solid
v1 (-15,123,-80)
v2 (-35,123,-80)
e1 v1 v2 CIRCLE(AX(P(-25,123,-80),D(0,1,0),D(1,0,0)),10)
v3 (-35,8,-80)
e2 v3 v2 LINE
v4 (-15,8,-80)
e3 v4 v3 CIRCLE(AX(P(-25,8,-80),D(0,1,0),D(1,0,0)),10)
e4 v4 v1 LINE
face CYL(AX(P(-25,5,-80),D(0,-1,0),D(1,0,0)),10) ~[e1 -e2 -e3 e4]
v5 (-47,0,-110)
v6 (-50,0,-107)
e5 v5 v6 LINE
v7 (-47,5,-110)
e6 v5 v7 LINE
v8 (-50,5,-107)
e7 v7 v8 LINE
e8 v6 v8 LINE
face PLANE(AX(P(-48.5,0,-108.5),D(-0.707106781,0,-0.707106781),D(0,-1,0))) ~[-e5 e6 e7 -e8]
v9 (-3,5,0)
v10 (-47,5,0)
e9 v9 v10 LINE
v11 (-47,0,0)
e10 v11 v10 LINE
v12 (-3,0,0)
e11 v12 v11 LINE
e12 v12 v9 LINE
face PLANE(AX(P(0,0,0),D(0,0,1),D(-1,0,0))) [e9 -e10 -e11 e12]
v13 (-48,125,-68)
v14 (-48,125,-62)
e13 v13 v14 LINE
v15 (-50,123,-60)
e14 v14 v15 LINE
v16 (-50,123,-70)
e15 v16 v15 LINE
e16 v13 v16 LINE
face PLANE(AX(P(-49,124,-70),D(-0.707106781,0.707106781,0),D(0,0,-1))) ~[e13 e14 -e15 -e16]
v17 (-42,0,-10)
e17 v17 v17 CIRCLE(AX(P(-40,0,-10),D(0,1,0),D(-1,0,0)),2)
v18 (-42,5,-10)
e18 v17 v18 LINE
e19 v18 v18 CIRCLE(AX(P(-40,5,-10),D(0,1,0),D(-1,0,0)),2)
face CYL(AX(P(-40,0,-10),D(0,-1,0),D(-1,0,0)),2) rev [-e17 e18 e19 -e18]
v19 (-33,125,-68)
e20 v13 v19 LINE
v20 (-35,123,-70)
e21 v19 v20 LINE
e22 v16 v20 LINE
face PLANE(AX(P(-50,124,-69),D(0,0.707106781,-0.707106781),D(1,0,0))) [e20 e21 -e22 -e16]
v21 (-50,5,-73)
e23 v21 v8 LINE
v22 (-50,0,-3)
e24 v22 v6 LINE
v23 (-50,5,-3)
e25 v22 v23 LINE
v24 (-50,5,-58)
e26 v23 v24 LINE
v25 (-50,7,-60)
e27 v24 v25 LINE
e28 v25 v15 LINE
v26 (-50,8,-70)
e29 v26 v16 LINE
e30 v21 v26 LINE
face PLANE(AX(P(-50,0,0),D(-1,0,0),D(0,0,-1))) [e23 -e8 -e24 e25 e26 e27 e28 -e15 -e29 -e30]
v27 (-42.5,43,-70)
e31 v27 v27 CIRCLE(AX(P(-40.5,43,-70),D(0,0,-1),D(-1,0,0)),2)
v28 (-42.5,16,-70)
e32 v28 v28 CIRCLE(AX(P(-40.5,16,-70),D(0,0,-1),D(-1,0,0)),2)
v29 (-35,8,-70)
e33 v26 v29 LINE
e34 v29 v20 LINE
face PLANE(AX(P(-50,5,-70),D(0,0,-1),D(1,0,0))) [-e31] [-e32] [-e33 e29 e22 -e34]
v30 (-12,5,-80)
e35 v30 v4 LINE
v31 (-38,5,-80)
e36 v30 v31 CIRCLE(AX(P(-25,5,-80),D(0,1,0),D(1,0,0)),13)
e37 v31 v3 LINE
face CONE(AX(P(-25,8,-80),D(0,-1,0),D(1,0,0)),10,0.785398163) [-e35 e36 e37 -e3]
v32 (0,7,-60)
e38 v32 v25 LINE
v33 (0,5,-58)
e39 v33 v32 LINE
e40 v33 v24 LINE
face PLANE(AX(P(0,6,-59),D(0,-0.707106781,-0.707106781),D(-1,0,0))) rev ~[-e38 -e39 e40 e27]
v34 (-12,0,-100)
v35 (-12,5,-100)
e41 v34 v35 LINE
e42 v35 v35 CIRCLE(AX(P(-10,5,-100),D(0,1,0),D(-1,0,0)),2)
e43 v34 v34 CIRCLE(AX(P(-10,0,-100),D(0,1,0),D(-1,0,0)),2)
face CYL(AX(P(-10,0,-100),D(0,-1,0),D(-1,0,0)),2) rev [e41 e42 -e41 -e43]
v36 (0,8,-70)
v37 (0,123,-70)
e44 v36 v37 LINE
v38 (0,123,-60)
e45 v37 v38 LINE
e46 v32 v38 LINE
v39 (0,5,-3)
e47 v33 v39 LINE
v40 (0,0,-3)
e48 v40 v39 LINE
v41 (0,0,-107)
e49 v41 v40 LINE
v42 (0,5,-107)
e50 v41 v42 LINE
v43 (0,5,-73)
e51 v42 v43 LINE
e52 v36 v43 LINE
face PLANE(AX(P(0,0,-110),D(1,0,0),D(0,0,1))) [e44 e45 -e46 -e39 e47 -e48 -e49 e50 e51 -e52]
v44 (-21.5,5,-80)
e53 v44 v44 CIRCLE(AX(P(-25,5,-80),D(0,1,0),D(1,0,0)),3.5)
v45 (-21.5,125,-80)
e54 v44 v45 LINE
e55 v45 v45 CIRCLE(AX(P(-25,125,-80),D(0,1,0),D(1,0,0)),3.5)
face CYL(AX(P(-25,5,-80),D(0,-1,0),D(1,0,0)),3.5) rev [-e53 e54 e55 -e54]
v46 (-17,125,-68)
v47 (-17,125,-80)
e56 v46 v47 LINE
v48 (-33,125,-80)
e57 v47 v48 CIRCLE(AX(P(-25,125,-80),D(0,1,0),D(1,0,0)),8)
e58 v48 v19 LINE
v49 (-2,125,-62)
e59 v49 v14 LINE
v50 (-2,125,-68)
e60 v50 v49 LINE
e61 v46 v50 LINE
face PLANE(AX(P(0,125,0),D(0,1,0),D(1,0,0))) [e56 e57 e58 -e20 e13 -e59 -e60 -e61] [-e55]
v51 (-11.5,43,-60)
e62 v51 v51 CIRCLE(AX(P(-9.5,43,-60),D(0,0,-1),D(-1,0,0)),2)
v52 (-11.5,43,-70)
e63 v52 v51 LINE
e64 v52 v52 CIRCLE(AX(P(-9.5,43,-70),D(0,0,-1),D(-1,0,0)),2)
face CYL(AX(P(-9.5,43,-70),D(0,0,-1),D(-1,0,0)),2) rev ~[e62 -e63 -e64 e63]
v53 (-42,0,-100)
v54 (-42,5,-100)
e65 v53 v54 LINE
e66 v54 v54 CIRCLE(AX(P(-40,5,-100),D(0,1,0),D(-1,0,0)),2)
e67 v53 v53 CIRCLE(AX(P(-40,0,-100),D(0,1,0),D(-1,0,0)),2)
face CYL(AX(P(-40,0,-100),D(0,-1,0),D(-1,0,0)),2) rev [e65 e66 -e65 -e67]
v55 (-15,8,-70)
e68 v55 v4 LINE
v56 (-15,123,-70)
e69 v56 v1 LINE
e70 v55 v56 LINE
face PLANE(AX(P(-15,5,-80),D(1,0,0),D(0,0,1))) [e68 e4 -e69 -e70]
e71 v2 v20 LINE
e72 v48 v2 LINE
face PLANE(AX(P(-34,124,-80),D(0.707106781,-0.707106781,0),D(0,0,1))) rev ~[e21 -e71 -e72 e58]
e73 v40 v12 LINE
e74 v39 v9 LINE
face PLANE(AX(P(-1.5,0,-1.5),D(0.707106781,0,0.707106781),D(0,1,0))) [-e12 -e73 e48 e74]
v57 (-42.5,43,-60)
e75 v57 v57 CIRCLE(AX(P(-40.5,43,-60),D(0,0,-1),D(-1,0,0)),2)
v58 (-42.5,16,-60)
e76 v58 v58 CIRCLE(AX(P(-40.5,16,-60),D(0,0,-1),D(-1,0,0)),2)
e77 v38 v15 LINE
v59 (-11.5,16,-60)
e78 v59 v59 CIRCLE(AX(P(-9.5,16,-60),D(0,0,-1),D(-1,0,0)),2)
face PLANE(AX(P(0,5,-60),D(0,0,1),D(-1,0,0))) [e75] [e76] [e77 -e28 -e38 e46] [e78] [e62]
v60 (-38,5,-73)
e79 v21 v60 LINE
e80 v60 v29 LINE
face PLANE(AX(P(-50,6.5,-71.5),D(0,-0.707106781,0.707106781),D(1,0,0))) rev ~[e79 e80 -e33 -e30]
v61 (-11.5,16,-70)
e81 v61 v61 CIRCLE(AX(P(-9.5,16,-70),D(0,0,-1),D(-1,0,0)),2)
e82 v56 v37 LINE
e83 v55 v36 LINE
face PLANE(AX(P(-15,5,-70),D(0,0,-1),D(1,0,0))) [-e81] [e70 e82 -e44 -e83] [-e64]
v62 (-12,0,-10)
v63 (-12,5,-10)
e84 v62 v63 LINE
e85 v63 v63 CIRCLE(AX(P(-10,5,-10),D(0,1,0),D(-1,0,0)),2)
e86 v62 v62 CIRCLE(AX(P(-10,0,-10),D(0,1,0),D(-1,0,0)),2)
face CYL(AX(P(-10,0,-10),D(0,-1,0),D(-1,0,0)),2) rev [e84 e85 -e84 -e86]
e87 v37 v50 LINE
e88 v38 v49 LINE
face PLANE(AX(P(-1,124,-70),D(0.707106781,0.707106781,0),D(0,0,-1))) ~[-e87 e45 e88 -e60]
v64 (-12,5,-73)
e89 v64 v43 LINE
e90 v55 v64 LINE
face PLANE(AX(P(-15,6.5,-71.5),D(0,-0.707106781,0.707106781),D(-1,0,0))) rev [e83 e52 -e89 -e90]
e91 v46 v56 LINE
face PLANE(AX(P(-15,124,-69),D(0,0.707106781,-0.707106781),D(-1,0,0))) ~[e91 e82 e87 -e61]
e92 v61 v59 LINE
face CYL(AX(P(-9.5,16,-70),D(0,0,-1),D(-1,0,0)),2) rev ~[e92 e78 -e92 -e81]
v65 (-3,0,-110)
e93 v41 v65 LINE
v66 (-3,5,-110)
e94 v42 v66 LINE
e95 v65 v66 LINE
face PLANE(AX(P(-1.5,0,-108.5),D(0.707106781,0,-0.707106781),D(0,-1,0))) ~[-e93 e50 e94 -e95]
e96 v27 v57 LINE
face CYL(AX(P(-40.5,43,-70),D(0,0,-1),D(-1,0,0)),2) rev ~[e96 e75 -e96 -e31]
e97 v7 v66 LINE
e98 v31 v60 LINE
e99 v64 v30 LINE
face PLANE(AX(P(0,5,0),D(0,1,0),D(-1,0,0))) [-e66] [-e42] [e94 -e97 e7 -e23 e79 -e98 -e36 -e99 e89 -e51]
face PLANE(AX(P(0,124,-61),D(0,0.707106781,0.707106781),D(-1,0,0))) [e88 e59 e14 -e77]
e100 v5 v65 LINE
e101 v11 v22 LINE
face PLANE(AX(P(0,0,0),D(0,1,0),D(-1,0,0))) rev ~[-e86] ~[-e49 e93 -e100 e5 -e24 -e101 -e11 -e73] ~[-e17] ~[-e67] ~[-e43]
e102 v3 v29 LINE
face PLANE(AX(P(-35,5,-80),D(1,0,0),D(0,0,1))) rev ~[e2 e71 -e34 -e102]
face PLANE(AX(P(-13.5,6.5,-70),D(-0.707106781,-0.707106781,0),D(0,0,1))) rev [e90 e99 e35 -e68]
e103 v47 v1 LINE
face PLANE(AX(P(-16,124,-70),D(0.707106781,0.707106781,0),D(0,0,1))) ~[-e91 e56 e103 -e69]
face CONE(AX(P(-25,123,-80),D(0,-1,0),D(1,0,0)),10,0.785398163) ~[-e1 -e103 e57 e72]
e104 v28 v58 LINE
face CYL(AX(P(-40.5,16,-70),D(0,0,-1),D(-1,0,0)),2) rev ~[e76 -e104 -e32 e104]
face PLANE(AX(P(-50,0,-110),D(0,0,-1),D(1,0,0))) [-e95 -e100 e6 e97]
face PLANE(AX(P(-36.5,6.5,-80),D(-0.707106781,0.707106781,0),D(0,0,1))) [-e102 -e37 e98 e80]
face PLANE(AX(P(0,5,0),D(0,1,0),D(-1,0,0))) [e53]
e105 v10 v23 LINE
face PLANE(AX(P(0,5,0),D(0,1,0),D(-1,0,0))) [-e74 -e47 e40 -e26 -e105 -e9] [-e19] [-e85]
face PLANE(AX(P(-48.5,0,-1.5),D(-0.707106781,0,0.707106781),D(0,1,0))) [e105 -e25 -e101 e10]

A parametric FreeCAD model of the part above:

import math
import FreeCAD as App
import Part
import Sketcher
from FreeCAD import Vector
Q = App.Units.Quantity


def edges_at(feature, points):
    """Names of the edges that pass closest to the given points."""
    edges = feature.Shape.Edges
    near = lambda p: min(range(len(edges)), key=lambda i: edges[i].distToShape(Part.Vertex(*p))[0])
    return sorted({f"Edge{near(p) + 1}" for p in points})

doc = App.newDocument("Part")
body = doc.addObject("PartDesign::Body", "Body")

# Sketch on XZ plane
sketch1 = body.newObject("Sketcher::SketchObject", "Sketch")
sketch1.AttachmentSupport = (doc.getObject("XZ_Plane"), [""])
sketch1.MapMode = "FlatFace"
sketch1.addGeometry([
    Part.LineSegment(Vector(-50, 0, 0), Vector(0, 0, 0)),  # 0
    Part.LineSegment(Vector(0, 0, 0), Vector(0, -110, 0)),  # 1
    Part.LineSegment(Vector(0, -110, 0), Vector(-50, -110, 0)),  # 2
    Part.LineSegment(Vector(-50, -110, 0), Vector(-50, 0, 0)),  # 3
    Part.Circle(Vector(-10, -100, 0), Vector(0, 0, 1), 2),  # 4
    Part.Circle(Vector(-40, -100, 0), Vector(0, 0, 1), 2),  # 5
    Part.Circle(Vector(-10, -10, 0), Vector(0, 0, 1), 2),  # 6
    Part.Circle(Vector(-40, -10, 0), Vector(0, 0, 1), 2),  # 7
], False)
sketch1.addConstraint([
    Sketcher.Constraint("Coincident", 0, 2, 1, 1),
    Sketcher.Constraint("Coincident", 1, 2, 2, 1),
    Sketcher.Constraint("Coincident", 2, 2, 3, 1),
    Sketcher.Constraint("Coincident", 3, 2, 0, 1),
    Sketcher.Constraint("Horizontal", 0),
    Sketcher.Constraint("Vertical", 1),
    Sketcher.Constraint("Horizontal", 2),
    Sketcher.Constraint("Vertical", 3),
    Sketcher.Constraint("Coincident", 0, 2, -1, 1),
    Sketcher.Constraint("Equal", 4, 5),
    Sketcher.Constraint("Equal", 5, 6),
    Sketcher.Constraint("Equal", 6, 7),
    Sketcher.Constraint("Horizontal", 4, 3, 5, 3),
    Sketcher.Constraint("Horizontal", 6, 3, 7, 3),
    Sketcher.Constraint("Vertical", 4, 3, 6, 3),
    Sketcher.Constraint("Vertical", 5, 3, 7, 3),
    Sketcher.Constraint("Diameter", 4, Q("4 mm")),
    Sketcher.Constraint("DistanceX", 0, 1, 0, 2, Q("50 mm")),
    Sketcher.Constraint("DistanceY", 1, 2, 1, 1, Q("110 mm")),
    Sketcher.Constraint("DistanceX", 4, 3, -1, 1, Q("10 mm")),
    Sketcher.Constraint("DistanceY", 6, 3, -1, 1, Q("10 mm")),
    Sketcher.Constraint("DistanceX", 5, 3, 4, 3, Q("30 mm")),
    Sketcher.Constraint("DistanceY", 4, 3, 6, 3, Q("90 mm")),
])
pad1 = body.newObject("PartDesign::Pad", "Pad")
pad1.Profile = sketch1
pad1.Length = 5
pad1.Reversed = True

# Sketch on XZ plane
sketch2 = body.newObject("Sketcher::SketchObject", "Sketch001")
sketch2.AttachmentSupport = (doc.getObject("XZ_Plane"), [""])
sketch2.MapMode = "FlatFace"
sketch2.AttachmentOffset = App.Placement(Vector(0, 0, -5), App.Rotation())
sketch2.addGeometry([
    Part.LineSegment(Vector(-35, -70, 0), Vector(-50, -70, 0)),  # 0
    Part.LineSegment(Vector(-50, -70, 0), Vector(-50, -60, 0)),  # 1
    Part.LineSegment(Vector(-50, -60, 0), Vector(0, -60, 0)),  # 2
    Part.LineSegment(Vector(0, -60, 0), Vector(0, -70, 0)),  # 3
    Part.LineSegment(Vector(0, -70, 0), Vector(-15, -70, 0)),  # 4
    Part.LineSegment(Vector(-15, -70, 0), Vector(-15, -80, 0)),  # 5
    Part.ArcOfCircle(Part.Circle(Vector(-25, -80, 0), Vector(0, 0, 1), 10), math.radians(180), math.radians(360)),  # 6
    Part.LineSegment(Vector(-35, -80, 0), Vector(-35, -70, 0)),  # 7
    Part.Circle(Vector(-25, -80, 0), Vector(0, 0, 1), 3.5),  # 8
], False)
sketch2.addConstraint([
    Sketcher.Constraint("Coincident", 0, 2, 1, 1),
    Sketcher.Constraint("Coincident", 1, 2, 2, 1),
    Sketcher.Constraint("Coincident", 2, 2, 3, 1),
    Sketcher.Constraint("Coincident", 3, 2, 4, 1),
    Sketcher.Constraint("Coincident", 4, 2, 5, 1),
    Sketcher.Constraint("Tangent", 5, 2, 6, 2),
    Sketcher.Constraint("Tangent", 6, 1, 7, 1),
    Sketcher.Constraint("Coincident", 7, 2, 0, 1),
    Sketcher.Constraint("Horizontal", 0),
    Sketcher.Constraint("Vertical", 1),
    Sketcher.Constraint("Horizontal", 2),
    Sketcher.Constraint("Vertical", 3),
    Sketcher.Constraint("Horizontal", 4),
    Sketcher.Constraint("Vertical", 5),
    Sketcher.Constraint("Vertical", 7),
    Sketcher.Constraint("Coincident", 8, 3, 6, 3),
    Sketcher.Constraint("PointOnObject", 2, 2, -2),
    Sketcher.Constraint("Horizontal", 0, 2, 3, 2),
    Sketcher.Constraint("Equal", 0, 4),
    Sketcher.Constraint("Equal", 3, 5),
    Sketcher.Constraint("Diameter", 8, Q("7 mm")),
    Sketcher.Constraint("DistanceY", 1, 2, -1, 1, Q("60 mm")),
    Sketcher.Constraint("Radius", 6, Q("10 mm")),
    Sketcher.Constraint("DistanceX", 0, 2, 0, 1, Q("15 mm")),
    Sketcher.Constraint("DistanceY", 1, 1, 1, 2, Q("10 mm")),
])
pad2 = body.newObject("PartDesign::Pad", "Pad001")
pad2.Profile = sketch2
pad2.Length = 120
pad2.Reversed = True
doc.recompute()

chamfer = body.newObject("PartDesign::Chamfer", "Chamfer")
chamfer.Base = (pad2, edges_at(pad2, [(-25, 5, -60)]))
chamfer.Size = 2
doc.recompute()

chamfer2 = body.newObject("PartDesign::Chamfer", "Chamfer001")
chamfer2.Base = (chamfer, edges_at(chamfer, [
    (-7.5, 5, -70),
    (-42.5, 5, -70),
    (-25, 5, -90),
    (-15, 5, -75),
    (-35, 5, -75),
]))
chamfer2.Size = 3

# Sketch on XY plane
sketch3 = body.newObject("Sketcher::SketchObject", "Sketch002")
sketch3.AttachmentSupport = (doc.getObject("XY_Plane"), [""])
sketch3.MapMode = "FlatFace"
sketch3.AttachmentOffset = App.Placement(Vector(0, 0, -70), App.Rotation())
sketch3.addGeometry([
    Part.Circle(Vector(-9.5, 16, 0), Vector(0, 0, 1), 2),
    Part.Circle(Vector(-40.5, 16, 0), Vector(0, 0, 1), 2),
    Part.Circle(Vector(-9.5, 43, 0), Vector(0, 0, 1), 2),
    Part.Circle(Vector(-40.5, 43, 0), Vector(0, 0, 1), 2),
], False)
sketch3.addConstraint([
    Sketcher.Constraint("Equal", 0, 1),
    Sketcher.Constraint("Equal", 1, 2),
    Sketcher.Constraint("Equal", 2, 3),
    Sketcher.Constraint("Horizontal", 0, 3, 1, 3),
    Sketcher.Constraint("Horizontal", 2, 3, 3, 3),
    Sketcher.Constraint("Vertical", 0, 3, 2, 3),
    Sketcher.Constraint("Vertical", 1, 3, 3, 3),
    Sketcher.Constraint("Diameter", 0, Q("4 mm")),
    Sketcher.Constraint("DistanceY", 0, 3, 2, 3, Q("27 mm")),
    Sketcher.Constraint("DistanceX", 0, 3, -1, 1, Q("9.5 mm")),
    Sketcher.Constraint("DistanceY", -1, 1, 0, 3, Q("16 mm")),
    Sketcher.Constraint("DistanceX", 1, 3, 0, 3, Q("31 mm")),
])
pocket1 = body.newObject("PartDesign::Pocket", "Pocket")
pocket1.Profile = sketch3
pocket1.Length = 10
pocket1.Reversed = True
doc.recompute()

chamfer3 = body.newObject("PartDesign::Chamfer", "Chamfer002")
chamfer3.Base = (pocket1, edges_at(pocket1, [
    (-25, 125, -90),
    (-35, 125, -75),
    (-15, 125, -75),
    (-7.5, 125, -70),
    (0, 125, -65),
    (-25, 125, -60),
    (-42.5, 125, -70),
    (-50, 125, -65),
]))
chamfer3.Size = 2
doc.recompute()

chamfer4 = body.newObject("PartDesign::Chamfer", "Chamfer003")
chamfer4.Base = (chamfer3, edges_at(chamfer3, [
    (0, 2.5, -110),
    (-50, 2.5, -110),
    (0, 2.5, 0),
    (-50, 2.5, 0),
]))
chamfer4.Size = 3

doc.recompute()
